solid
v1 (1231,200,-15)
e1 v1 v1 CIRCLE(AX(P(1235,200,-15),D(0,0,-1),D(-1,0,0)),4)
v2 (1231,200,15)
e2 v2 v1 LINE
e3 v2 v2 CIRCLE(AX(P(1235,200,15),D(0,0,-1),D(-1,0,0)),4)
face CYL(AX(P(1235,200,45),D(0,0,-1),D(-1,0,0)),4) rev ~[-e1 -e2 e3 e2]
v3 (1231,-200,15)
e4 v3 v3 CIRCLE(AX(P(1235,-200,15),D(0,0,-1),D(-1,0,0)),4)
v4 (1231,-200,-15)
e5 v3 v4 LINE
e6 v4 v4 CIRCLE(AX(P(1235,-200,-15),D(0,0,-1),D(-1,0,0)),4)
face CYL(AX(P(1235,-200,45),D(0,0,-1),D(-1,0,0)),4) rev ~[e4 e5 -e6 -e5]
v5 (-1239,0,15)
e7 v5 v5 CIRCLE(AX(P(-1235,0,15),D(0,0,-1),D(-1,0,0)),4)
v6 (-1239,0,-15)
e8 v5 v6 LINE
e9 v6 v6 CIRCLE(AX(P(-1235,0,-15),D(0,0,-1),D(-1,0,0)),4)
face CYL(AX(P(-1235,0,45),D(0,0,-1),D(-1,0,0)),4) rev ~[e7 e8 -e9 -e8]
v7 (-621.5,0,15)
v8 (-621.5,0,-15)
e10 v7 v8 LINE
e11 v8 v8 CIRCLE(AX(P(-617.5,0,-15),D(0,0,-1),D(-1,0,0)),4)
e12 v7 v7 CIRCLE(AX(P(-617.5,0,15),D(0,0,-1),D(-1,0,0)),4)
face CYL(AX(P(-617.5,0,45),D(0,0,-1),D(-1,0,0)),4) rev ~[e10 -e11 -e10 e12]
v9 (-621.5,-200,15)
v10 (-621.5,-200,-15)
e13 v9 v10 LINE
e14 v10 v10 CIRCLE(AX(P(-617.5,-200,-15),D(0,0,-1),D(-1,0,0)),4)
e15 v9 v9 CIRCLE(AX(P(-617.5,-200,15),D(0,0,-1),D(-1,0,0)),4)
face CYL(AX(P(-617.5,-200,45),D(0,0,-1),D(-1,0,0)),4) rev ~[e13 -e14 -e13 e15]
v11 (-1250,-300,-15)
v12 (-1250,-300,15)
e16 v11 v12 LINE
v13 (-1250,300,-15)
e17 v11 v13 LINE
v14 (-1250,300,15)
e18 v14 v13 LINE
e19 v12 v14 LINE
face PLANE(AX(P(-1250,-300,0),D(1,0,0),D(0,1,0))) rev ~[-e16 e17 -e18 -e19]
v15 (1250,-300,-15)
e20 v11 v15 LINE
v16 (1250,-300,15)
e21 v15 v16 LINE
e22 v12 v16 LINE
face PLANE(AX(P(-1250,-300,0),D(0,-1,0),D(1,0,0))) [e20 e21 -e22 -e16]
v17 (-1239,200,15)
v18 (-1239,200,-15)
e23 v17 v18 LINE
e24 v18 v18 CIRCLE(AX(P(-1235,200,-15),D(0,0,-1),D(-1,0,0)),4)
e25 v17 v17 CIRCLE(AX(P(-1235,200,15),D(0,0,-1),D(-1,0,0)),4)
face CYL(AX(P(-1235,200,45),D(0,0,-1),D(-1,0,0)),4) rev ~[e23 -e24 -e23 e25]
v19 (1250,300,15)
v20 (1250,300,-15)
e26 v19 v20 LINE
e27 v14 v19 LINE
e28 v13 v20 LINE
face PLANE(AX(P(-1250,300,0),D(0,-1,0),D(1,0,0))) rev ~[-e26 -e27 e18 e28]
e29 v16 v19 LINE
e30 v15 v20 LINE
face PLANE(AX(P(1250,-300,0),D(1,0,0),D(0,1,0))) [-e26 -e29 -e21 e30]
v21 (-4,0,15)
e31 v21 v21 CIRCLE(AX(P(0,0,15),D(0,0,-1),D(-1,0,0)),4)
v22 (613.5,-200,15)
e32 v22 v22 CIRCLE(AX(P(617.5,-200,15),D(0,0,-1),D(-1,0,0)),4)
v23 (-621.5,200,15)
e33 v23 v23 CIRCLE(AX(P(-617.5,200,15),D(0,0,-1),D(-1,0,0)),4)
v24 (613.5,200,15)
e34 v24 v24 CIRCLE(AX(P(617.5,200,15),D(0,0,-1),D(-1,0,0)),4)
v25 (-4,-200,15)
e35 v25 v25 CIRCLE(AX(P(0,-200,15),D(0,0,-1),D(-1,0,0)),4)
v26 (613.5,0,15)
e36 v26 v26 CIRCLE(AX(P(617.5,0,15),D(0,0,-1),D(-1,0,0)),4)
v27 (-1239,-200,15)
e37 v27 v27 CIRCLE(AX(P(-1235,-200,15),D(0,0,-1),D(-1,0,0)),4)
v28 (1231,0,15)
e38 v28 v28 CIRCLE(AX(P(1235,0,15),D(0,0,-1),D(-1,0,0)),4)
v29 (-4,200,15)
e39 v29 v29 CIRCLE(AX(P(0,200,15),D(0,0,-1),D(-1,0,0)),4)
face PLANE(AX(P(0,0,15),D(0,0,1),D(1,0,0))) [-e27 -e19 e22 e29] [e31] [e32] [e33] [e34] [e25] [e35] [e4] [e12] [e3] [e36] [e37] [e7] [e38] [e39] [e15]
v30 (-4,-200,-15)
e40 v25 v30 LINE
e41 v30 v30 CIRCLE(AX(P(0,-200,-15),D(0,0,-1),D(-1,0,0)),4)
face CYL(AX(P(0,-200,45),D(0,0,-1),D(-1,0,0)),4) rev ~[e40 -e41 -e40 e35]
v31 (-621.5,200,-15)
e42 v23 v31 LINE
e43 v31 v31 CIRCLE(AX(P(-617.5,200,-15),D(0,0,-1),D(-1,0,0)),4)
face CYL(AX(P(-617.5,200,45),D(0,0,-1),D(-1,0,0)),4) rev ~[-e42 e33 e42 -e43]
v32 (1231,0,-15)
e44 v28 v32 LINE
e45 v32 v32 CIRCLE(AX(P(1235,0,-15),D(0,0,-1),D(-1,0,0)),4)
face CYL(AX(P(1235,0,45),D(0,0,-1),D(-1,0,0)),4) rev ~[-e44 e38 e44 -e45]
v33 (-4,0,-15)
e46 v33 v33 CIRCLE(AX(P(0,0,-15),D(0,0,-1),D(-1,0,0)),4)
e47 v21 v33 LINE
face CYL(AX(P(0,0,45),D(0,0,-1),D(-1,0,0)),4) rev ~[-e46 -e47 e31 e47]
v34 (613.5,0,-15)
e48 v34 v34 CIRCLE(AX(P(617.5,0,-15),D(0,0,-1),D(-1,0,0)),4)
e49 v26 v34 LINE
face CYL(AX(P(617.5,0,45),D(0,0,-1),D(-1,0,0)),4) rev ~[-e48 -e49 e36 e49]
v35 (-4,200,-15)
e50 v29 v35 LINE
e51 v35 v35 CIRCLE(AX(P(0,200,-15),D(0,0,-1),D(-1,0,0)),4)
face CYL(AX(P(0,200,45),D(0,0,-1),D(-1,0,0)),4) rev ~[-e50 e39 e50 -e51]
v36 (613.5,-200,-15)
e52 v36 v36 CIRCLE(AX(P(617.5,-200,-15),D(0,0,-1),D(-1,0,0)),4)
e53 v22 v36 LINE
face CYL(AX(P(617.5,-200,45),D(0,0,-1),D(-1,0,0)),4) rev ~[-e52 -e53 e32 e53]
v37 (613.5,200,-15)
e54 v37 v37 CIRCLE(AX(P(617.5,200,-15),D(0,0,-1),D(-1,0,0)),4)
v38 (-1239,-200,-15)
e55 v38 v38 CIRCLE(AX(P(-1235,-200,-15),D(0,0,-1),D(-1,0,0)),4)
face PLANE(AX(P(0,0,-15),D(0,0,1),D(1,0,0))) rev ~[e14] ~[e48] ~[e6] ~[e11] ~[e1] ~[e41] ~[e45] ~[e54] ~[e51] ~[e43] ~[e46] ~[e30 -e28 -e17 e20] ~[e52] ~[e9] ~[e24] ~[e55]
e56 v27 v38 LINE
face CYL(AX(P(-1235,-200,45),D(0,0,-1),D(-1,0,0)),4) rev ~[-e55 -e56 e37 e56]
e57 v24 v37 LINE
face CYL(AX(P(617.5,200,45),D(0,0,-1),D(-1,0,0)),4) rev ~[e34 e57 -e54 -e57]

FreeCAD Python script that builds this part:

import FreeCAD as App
import Part
import Sketcher
from FreeCAD import Vector
Q = App.Units.Quantity

doc = App.newDocument("Part")
body = doc.addObject("PartDesign::Body", "Body")

# Sketch on XY plane
sketch1 = body.newObject("Sketcher::SketchObject", "Sketch")
sketch1.AttachmentSupport = (doc.getObject("XY_Plane"), [""])
sketch1.MapMode = "FlatFace"
sketch1.addGeometry(Part.LineSegment(Vector(-1250, 300, 0), Vector(-1250, -300, 0)), False)
sketch1.addGeometry(Part.LineSegment(Vector(-1250, -300, 0), Vector(1250, -300, 0)), False)
sketch1.addGeometry(Part.LineSegment(Vector(1250, -300, 0), Vector(1250, 300, 0)), False)
sketch1.addGeometry(Part.LineSegment(Vector(1250, 300, 0), Vector(-1250, 300, 0)), False)
sketch1.addConstraint(Sketcher.Constraint("Coincident", 0, 2, 1, 1))
sketch1.addConstraint(Sketcher.Constraint("Coincident", 1, 2, 2, 1))
sketch1.addConstraint(Sketcher.Constraint("Coincident", 2, 2, 3, 1))
sketch1.addConstraint(Sketcher.Constraint("Coincident", 3, 2, 0, 1))
sketch1.addConstraint(Sketcher.Constraint("Vertical", 0))
sketch1.addConstraint(Sketcher.Constraint("Horizontal", 1))
sketch1.addConstraint(Sketcher.Constraint("Vertical", 2))
sketch1.addConstraint(Sketcher.Constraint("Horizontal", 3))
sketch1.addConstraint(Sketcher.Constraint("Symmetric", 0, 2, 2, 2, -1, 1))
sketch1.addConstraint(Sketcher.Constraint("DistanceX", 1, 1, 1, 2, Q("2500 mm")))
sketch1.addConstraint(Sketcher.Constraint("DistanceY", 0, 2, 0, 1, Q("600 mm")))
pad1 = body.newObject("PartDesign::Pad", "Pad")
pad1.Profile = sketch1
pad1.Length = 30
pad1.Midplane = True

# Sketch on XY plane
sketch2 = body.newObject("Sketcher::SketchObject", "Sketch001")
sketch2.AttachmentSupport = (doc.getObject("XY_Plane"), [""])
sketch2.MapMode = "FlatFace"
sketch2.AttachmentOffset = App.Placement(Vector(0, 0, 15), App.Rotation())
sketch2.addGeometry(Part.Circle(Vector(-1235, 200, 0), Vector(0, 0, 1), 4), False)
sketch2.addGeometry(Part.Circle(Vector(-1235, 0, 0), Vector(0, 0, 1), 4), False)
sketch2.addGeometry(Part.Circle(Vector(-1235, -200, 0), Vector(0, 0, 1), 4), False)
sketch2.addGeometry(Part.Circle(Vector(-617.5, 200, 0), Vector(0, 0, 1), 4), False)
sketch2.addGeometry(Part.Circle(Vector(-617.5, 0, 0), Vector(0, 0, 1), 4), False)
sketch2.addGeometry(Part.Circle(Vector(-617.5, -200, 0), Vector(0, 0, 1), 4), False)
sketch2.addGeometry(Part.Circle(Vector(0, 200, 0), Vector(0, 0, 1), 4), False)
sketch2.addGeometry(Part.Circle(Vector(0, 0, 0), Vector(0, 0, 1), 4), False)
sketch2.addGeometry(Part.Circle(Vector(0, -200, 0), Vector(0, 0, 1), 4), False)
sketch2.addGeometry(Part.Circle(Vector(617.5, 200, 0), Vector(0, 0, 1), 4), False)
sketch2.addGeometry(Part.Circle(Vector(617.5, 0, 0), Vector(0, 0, 1), 4), False)
sketch2.addGeometry(Part.Circle(Vector(1235, 200, 0), Vector(0, 0, 1), 4), False)
sketch2.addGeometry(Part.Circle(Vector(1235, 0, 0), Vector(0, 0, 1), 4), False)
sketch2.addGeometry(Part.Circle(Vector(1235, -200, 0), Vector(0, 0, 1), 4), False)
sketch2.addGeometry(Part.Circle(Vector(617.5, -200, 0), Vector(0, 0, 1), 4), False)
sketch2.addConstraint(Sketcher.Constraint("Coincident", 7, 3, -1, 1))
sketch2.addConstraint(Sketcher.Constraint("Equal", 0, 1))
sketch2.addConstraint(Sketcher.Constraint("Equal", 1, 2))
sketch2.addConstraint(Sketcher.Constraint("Equal", 2, 3))
sketch2.addConstraint(Sketcher.Constraint("Equal", 3, 4))
sketch2.addConstraint(Sketcher.Constraint("Equal", 4, 5))
sketch2.addConstraint(Sketcher.Constraint("Equal", 5, 6))
sketch2.addConstraint(Sketcher.Constraint("Equal", 6, 7))
sketch2.addConstraint(Sketcher.Constraint("Equal", 7, 8))
sketch2.addConstraint(Sketcher.Constraint("Equal", 8, 9))
sketch2.addConstraint(Sketcher.Constraint("Equal", 9, 10))
sketch2.addConstraint(Sketcher.Constraint("Equal", 10, 11))
sketch2.addConstraint(Sketcher.Constraint("Equal", 11, 12))
sketch2.addConstraint(Sketcher.Constraint("Equal", 12, 13))
sketch2.addConstraint(Sketcher.Constraint("Equal", 13, 14))
sketch2.addConstraint(Sketcher.Constraint("Symmetric", 6, 3, 8, 3, -1, 1))
sketch2.addConstraint(Sketcher.Constraint("Symmetric", 5, 3, 9, 3, -1, 1))
sketch2.addConstraint(Sketcher.Constraint("Symmetric", 4, 3, 10, 3, -1, 1))
sketch2.addConstraint(Sketcher.Constraint("Symmetric", 2, 3, 11, 3, -1, 1))
sketch2.addConstraint(Sketcher.Constraint("Symmetric", 1, 3, 12, 3, -1, 1))
sketch2.addConstraint(Sketcher.Constraint("Symmetric", 0, 3, 13, 3, -1, 1))
sketch2.addConstraint(Sketcher.Constraint("Symmetric", 3, 3, 14, 3, -1, 1))
sketch2.addConstraint(Sketcher.Constraint("Symmetric", 3, 3, 9, 3, -2))
sketch2.addConstraint(Sketcher.Constraint("Symmetric", 0, 3, 11, 3, -2))
sketch2.addConstraint(Sketcher.Constraint("PointOnObject", 1, 3, -1))
sketch2.addConstraint(Sketcher.Constraint("PointOnObject", 4, 3, -1))
sketch2.addConstraint(Sketcher.Constraint("PointOnObject", 6, 3, -2))
sketch2.addConstraint(Sketcher.Constraint("Horizontal", 0, 3, 3, 3))
sketch2.addConstraint(Sketcher.Constraint("Horizontal", 3, 3, 6, 3))
sketch2.addConstraint(Sketcher.Constraint("Vertical", 0, 3, 1, 3))
sketch2.addConstraint(Sketcher.Constraint("Vertical", 3, 3, 4, 3))
sketch2.addConstraint(Sketcher.Constraint("Diameter", 0, Q("8 mm")))
sketch2.addConstraint(Sketcher.Constraint("DistanceX", 0, 3, -1, 1, Q("1235 mm")))
sketch2.addConstraint(Sketcher.Constraint("DistanceY", -1, 1, 0, 3, Q("200 mm")))
sketch2.addConstraint(Sketcher.Constraint("DistanceX", 3, 3, 9, 3, Q("1235 mm")))
doc.recompute()
hole = body.newObject("PartDesign::Hole", "Hole")
hole.Profile = sketch2
hole.ThreadType = "None"
hole.Diameter = 8
hole.DepthType = "Dimension"
hole.Depth = 30
hole.DrillPoint = "Flat"

doc.recompute()
